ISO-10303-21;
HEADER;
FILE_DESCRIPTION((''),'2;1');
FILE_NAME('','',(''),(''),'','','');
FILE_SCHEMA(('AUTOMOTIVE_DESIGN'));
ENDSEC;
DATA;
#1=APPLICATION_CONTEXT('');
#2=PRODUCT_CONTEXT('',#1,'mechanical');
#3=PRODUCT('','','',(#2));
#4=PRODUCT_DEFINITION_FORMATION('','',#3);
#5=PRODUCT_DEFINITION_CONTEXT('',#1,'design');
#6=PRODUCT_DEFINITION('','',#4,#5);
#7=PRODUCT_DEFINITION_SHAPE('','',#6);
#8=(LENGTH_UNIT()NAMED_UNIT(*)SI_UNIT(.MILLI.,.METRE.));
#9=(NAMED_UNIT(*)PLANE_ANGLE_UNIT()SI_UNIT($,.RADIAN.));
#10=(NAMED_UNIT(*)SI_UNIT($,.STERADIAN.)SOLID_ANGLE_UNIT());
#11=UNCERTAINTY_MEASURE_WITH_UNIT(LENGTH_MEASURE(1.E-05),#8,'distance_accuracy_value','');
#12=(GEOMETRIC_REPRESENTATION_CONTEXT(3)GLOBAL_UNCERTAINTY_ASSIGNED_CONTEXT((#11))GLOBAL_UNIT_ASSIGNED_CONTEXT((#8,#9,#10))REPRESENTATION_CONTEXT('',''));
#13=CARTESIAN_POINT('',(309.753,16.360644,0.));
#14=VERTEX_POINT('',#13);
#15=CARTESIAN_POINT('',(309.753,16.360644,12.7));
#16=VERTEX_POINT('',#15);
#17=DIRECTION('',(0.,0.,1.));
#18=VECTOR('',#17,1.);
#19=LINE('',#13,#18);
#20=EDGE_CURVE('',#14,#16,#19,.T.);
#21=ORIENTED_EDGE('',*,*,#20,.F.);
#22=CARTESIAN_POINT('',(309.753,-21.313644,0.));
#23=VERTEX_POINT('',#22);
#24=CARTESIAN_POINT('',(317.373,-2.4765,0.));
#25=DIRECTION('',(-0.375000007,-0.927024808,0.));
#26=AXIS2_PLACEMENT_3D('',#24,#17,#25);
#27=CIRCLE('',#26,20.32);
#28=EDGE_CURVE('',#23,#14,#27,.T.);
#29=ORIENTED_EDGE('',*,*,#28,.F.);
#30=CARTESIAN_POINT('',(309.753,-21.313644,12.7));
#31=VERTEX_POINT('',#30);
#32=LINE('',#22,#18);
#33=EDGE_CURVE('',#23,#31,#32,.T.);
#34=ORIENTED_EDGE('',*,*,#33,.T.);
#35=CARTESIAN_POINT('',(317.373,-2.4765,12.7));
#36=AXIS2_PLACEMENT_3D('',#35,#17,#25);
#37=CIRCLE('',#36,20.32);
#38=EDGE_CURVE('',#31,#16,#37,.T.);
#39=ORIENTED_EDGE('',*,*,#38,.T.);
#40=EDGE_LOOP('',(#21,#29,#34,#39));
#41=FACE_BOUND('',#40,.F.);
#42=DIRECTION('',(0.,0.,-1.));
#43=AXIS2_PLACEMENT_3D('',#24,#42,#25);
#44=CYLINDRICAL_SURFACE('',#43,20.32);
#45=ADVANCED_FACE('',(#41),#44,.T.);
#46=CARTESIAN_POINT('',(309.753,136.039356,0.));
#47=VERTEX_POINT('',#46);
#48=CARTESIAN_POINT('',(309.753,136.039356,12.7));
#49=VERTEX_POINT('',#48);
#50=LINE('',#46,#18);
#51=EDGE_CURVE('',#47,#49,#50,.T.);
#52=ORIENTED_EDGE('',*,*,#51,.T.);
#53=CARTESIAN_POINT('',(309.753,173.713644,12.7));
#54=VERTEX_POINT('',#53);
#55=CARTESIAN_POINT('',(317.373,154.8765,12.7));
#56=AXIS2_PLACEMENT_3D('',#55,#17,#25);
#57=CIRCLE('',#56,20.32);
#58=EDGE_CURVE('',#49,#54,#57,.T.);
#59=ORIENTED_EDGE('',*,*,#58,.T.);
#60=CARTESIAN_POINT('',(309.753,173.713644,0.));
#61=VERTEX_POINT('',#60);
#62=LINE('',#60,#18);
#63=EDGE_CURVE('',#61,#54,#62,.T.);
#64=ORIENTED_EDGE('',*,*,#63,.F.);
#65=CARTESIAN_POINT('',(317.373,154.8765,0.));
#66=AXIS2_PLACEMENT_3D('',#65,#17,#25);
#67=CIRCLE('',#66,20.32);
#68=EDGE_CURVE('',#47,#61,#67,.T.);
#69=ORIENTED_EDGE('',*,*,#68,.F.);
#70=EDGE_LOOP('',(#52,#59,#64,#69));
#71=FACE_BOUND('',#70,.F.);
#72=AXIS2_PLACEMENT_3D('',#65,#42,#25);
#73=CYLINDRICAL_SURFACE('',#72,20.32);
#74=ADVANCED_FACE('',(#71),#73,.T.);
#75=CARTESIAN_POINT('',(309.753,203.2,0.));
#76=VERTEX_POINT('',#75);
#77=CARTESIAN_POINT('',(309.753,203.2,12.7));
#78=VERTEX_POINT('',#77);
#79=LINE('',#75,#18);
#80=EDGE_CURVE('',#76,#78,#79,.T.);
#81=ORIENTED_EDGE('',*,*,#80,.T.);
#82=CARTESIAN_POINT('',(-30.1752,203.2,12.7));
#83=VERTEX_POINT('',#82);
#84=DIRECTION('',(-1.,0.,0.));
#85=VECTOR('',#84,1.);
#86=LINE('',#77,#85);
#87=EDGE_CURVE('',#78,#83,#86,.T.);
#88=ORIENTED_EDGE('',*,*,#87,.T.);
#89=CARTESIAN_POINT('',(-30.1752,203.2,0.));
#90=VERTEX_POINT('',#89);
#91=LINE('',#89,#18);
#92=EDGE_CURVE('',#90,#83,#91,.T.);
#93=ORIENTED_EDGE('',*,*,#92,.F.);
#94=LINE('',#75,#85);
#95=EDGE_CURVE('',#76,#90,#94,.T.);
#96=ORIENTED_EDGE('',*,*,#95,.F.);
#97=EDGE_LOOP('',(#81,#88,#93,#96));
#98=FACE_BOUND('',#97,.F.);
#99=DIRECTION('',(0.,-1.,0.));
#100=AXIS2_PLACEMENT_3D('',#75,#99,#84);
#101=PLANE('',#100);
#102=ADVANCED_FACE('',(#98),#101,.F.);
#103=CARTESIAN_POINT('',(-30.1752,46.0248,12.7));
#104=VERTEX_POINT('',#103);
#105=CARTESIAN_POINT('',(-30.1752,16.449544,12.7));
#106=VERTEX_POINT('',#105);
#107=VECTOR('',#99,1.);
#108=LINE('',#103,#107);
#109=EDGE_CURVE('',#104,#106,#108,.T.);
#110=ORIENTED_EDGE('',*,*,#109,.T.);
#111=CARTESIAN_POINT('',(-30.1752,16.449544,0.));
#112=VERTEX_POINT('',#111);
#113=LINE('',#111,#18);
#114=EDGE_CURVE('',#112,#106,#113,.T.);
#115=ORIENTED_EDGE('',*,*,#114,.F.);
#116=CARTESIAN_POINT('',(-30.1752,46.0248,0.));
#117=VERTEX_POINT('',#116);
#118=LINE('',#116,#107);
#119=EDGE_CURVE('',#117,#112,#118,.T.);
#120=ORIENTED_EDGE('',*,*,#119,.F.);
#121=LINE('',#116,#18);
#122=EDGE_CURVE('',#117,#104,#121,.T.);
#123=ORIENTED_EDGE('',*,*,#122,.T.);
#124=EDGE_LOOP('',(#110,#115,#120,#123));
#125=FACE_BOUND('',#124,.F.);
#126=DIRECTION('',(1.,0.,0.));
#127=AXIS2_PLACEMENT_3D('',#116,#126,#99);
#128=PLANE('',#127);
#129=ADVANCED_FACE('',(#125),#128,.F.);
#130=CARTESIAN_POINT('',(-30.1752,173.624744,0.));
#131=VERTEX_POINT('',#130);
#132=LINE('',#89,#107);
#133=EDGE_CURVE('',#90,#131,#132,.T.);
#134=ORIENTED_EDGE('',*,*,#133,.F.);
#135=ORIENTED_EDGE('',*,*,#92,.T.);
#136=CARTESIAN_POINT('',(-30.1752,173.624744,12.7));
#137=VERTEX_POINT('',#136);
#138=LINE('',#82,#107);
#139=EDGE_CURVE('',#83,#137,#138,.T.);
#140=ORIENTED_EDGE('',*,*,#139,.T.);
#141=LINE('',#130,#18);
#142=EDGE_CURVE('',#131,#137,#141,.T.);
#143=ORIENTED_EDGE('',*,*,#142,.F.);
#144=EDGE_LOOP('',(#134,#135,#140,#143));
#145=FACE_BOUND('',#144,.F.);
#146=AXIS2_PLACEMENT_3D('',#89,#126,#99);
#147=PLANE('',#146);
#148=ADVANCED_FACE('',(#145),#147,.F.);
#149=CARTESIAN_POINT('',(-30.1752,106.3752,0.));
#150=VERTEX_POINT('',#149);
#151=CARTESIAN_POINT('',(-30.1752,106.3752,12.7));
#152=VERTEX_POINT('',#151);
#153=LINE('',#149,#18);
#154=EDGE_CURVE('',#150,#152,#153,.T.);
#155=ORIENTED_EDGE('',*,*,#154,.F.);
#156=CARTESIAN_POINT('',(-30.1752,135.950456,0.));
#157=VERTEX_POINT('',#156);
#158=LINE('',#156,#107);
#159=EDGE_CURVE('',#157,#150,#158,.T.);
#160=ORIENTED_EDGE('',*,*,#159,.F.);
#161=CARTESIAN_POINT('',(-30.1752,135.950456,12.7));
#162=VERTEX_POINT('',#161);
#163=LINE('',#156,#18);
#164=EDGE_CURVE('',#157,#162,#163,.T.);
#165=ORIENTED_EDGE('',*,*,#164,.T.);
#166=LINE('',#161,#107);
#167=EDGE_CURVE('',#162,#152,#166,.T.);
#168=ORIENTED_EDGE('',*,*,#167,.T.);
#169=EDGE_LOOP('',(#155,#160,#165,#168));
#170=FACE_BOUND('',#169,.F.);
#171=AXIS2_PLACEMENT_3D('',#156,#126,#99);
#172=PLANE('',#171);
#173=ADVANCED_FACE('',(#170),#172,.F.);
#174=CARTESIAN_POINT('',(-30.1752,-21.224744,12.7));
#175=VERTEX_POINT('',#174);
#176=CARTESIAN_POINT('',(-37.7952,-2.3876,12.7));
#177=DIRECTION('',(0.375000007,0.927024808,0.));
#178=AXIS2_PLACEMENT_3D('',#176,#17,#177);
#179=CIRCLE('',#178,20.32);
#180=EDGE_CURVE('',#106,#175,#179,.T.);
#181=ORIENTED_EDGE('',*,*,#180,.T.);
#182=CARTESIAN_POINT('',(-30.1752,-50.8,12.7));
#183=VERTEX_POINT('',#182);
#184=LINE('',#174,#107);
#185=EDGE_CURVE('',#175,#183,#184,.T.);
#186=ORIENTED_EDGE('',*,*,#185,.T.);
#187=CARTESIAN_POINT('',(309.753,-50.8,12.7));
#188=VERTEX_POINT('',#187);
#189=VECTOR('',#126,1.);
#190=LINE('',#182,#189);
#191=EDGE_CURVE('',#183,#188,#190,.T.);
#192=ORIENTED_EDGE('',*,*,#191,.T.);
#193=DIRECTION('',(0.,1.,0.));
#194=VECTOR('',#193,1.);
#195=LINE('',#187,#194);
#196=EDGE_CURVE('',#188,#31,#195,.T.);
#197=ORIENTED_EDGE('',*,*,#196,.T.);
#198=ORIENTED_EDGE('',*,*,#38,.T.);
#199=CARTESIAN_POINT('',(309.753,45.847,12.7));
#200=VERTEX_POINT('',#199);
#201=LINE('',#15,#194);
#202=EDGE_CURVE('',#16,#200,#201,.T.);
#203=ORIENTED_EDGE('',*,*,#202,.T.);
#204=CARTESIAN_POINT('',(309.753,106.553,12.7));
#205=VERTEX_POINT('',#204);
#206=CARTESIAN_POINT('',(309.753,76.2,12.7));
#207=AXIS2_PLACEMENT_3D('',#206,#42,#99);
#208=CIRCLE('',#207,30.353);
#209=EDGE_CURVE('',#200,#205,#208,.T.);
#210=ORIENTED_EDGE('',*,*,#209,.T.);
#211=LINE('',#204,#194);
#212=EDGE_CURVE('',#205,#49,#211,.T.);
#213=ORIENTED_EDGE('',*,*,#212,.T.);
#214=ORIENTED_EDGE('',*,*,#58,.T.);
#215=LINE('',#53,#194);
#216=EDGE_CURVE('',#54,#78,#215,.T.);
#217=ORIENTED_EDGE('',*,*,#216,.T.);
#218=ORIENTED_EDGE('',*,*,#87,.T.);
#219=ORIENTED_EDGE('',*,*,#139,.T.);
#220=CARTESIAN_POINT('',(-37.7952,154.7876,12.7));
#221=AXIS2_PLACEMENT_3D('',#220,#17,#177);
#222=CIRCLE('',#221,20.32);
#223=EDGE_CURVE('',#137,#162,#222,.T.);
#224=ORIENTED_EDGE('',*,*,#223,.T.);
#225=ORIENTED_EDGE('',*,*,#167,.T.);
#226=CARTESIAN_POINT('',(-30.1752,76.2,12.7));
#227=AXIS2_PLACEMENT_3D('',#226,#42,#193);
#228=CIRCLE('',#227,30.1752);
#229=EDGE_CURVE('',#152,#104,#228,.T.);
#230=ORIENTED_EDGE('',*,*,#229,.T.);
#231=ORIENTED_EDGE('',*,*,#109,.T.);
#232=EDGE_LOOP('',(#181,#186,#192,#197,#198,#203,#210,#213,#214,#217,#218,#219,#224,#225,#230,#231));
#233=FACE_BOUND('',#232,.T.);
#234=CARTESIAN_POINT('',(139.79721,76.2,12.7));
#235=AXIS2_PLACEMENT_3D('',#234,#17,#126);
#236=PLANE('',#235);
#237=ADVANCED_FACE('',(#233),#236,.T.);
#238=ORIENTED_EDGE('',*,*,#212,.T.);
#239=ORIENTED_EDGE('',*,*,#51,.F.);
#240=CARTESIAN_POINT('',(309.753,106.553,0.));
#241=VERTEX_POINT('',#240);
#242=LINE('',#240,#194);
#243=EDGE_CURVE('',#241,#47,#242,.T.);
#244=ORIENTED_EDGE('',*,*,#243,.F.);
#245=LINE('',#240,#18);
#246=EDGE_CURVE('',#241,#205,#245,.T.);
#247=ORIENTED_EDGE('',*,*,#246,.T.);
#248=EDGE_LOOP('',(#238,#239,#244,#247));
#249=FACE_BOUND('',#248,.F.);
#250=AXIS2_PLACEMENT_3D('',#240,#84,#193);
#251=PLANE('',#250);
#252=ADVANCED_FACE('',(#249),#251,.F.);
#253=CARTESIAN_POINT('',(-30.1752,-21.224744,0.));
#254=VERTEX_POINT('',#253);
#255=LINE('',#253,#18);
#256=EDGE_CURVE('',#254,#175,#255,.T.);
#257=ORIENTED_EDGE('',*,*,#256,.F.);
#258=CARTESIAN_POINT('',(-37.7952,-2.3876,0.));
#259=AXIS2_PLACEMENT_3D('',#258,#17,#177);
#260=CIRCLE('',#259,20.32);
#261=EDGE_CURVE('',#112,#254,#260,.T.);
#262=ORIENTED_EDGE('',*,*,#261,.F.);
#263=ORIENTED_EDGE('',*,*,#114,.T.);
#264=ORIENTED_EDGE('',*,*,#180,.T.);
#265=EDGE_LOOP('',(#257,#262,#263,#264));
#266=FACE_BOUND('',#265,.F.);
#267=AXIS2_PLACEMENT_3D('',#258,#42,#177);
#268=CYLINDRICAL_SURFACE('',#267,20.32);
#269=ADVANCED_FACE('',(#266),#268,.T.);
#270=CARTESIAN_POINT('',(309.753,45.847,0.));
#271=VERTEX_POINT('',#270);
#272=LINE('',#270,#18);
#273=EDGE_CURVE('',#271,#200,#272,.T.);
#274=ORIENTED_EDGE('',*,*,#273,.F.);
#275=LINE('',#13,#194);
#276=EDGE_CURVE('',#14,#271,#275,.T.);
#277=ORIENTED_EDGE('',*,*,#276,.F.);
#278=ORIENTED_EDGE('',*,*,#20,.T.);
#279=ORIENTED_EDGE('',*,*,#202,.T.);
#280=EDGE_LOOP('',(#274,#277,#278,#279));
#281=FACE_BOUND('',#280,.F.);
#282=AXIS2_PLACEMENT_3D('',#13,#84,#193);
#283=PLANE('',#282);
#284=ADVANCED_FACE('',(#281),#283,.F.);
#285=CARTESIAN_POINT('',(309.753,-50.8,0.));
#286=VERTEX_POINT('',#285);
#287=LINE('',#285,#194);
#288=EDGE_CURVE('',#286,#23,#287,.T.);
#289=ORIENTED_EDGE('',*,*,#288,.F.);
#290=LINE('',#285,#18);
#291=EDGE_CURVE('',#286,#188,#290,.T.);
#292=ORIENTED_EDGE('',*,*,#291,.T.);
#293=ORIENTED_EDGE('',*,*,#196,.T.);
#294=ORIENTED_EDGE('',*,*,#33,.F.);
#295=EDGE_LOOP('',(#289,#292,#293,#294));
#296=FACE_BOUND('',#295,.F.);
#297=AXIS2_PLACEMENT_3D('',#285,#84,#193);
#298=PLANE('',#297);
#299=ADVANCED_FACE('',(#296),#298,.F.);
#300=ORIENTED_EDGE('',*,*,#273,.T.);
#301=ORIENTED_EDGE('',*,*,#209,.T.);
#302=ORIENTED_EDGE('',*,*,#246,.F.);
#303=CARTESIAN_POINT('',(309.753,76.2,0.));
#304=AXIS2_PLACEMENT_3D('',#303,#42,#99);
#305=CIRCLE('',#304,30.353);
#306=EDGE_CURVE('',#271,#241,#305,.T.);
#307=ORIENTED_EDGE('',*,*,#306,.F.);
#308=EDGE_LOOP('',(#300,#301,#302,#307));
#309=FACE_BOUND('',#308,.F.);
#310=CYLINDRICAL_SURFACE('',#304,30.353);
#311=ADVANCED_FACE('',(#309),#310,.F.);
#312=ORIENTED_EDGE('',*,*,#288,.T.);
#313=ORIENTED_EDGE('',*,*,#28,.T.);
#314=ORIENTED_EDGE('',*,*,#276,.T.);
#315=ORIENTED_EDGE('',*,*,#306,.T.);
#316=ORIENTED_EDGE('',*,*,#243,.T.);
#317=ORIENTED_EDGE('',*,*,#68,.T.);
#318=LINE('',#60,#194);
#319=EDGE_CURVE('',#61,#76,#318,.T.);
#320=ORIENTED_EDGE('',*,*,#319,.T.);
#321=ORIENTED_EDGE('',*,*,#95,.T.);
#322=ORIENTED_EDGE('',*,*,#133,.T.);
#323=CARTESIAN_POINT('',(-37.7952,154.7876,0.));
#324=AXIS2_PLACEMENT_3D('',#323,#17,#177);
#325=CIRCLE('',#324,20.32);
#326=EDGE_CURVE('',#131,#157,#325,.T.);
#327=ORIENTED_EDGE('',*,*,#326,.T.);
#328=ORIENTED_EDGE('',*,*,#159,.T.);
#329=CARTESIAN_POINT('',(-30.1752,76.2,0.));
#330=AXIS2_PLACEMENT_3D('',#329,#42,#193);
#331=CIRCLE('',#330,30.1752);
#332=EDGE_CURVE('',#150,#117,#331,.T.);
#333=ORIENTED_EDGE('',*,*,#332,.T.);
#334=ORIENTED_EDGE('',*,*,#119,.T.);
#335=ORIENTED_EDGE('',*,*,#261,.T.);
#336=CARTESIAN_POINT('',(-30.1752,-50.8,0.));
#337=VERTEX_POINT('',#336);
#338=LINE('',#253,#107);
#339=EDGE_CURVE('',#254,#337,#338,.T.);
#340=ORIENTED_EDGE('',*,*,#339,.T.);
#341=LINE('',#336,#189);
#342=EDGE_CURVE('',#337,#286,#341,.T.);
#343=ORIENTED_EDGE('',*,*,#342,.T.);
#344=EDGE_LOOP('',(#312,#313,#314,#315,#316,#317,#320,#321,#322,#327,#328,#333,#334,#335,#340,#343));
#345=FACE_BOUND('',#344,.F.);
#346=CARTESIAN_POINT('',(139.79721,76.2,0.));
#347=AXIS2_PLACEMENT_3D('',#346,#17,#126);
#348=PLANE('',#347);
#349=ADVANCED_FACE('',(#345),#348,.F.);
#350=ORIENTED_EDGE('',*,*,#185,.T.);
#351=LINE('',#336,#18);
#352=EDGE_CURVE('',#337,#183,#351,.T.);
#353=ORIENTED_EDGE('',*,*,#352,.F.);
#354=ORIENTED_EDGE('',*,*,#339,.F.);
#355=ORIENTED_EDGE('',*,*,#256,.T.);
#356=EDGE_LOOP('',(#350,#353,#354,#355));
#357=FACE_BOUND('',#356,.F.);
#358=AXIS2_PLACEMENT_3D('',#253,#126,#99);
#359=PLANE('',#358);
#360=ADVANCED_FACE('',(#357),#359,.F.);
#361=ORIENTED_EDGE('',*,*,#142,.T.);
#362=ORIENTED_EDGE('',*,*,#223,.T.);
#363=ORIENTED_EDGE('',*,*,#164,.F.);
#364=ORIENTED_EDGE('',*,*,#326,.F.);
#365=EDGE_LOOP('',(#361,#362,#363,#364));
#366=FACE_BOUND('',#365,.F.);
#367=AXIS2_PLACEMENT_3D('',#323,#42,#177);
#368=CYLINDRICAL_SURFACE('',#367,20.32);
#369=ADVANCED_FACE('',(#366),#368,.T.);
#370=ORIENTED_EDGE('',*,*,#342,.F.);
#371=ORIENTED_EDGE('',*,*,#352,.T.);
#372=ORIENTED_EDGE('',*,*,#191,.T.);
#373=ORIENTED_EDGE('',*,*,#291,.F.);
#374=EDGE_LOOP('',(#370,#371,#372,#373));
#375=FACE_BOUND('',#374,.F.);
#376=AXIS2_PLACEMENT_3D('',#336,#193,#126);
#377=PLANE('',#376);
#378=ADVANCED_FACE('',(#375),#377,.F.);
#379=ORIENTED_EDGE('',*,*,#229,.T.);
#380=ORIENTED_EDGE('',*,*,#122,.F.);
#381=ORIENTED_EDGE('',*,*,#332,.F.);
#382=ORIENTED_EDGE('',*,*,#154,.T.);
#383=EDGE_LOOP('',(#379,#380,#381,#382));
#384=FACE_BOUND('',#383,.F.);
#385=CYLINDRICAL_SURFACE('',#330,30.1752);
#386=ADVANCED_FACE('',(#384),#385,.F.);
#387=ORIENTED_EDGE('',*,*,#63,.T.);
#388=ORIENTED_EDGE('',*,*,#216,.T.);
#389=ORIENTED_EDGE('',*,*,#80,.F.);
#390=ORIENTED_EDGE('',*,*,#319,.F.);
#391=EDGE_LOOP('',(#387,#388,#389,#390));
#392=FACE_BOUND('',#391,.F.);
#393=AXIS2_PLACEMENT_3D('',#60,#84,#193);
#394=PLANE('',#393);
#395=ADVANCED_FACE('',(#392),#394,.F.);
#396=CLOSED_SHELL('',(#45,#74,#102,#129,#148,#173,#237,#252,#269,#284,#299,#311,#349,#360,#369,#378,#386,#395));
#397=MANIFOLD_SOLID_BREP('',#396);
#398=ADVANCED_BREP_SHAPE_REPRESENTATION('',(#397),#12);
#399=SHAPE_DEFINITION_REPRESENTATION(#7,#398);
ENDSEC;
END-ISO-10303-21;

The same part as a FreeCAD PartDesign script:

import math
import FreeCAD as App
import Part
import Sketcher
Q = App.Units.Quantity

doc = App.newDocument("Part")
body = doc.addObject("PartDesign::Body", "Body")

# Sketch on XY plane
sketch1 = body.newObject("Sketcher::SketchObject", "Sketch")
sketch1.AttachmentSupport = (doc.getObject("XY_Plane"), [""])
sketch1.MapMode = "FlatFace"
sketch1.addGeometry([
    Part.ArcOfCircle(Part.Circle(App.Vector(-30, 76, 0), App.Vector(0, 0, 1), 30), math.radians(-90), math.radians(90)),  # 0
    Part.LineSegment(App.Vector(-30, 46, 0), App.Vector(-30, 16, 0)),  # 1
    Part.ArcOfCircle(Part.Circle(App.Vector(-38, -2, 0), App.Vector(0, 0, 1), 20), math.radians(68), math.radians(292)),  # 2
    Part.LineSegment(App.Vector(-30, -21, 0), App.Vector(-30, -51, 0)),  # 3
    Part.LineSegment(App.Vector(-30, -51, 0), App.Vector(310, -51, 0)),  # 4
    Part.LineSegment(App.Vector(310, -51, 0), App.Vector(310, -21, 0)),  # 5
    Part.ArcOfCircle(Part.Circle(App.Vector(317, -2, 0), App.Vector(0, 0, 1), 20), math.radians(-112), math.radians(112)),  # 6
    Part.LineSegment(App.Vector(310, 16, 0), App.Vector(310, 46, 0)),  # 7
    Part.ArcOfCircle(Part.Circle(App.Vector(310, 76, 0), App.Vector(0, 0, 1), 30), math.radians(90), math.radians(270)),  # 8
    Part.LineSegment(App.Vector(310, 107, 0), App.Vector(310, 136, 0)),  # 9
    Part.ArcOfCircle(Part.Circle(App.Vector(317, 155, 0), App.Vector(0, 0, 1), 20), math.radians(-112), math.radians(112)),  # 10
    Part.LineSegment(App.Vector(310, 174, 0), App.Vector(310, 203, 0)),  # 11
    Part.LineSegment(App.Vector(310, 203, 0), App.Vector(-30, 203, 0)),  # 12
    Part.LineSegment(App.Vector(-30, 203, 0), App.Vector(-30, 174, 0)),  # 13
    Part.ArcOfCircle(Part.Circle(App.Vector(-38, 155, 0), App.Vector(0, 0, 1), 20), math.radians(68), math.radians(292)),  # 14
    Part.LineSegment(App.Vector(-30, 136, 0), App.Vector(-30, 106, 0)),  # 15
], False)
sketch1.addConstraint([
    Sketcher.Constraint("Coincident", 0, 1, 1, 1),
    Sketcher.Constraint("Coincident", 1, 2, 2, 1),
    Sketcher.Constraint("Coincident", 2, 2, 3, 1),
    Sketcher.Constraint("Coincident", 3, 2, 4, 1),
    Sketcher.Constraint("Coincident", 4, 2, 5, 1),
    Sketcher.Constraint("Coincident", 5, 2, 6, 1),
    Sketcher.Constraint("Coincident", 6, 2, 7, 1),
    Sketcher.Constraint("Coincident", 7, 2, 8, 2),
    Sketcher.Constraint("Coincident", 8, 1, 9, 1),
    Sketcher.Constraint("Coincident", 9, 2, 10, 1),
    Sketcher.Constraint("Coincident", 10, 2, 11, 1),
    Sketcher.Constraint("Coincident", 11, 2, 12, 1),
    Sketcher.Constraint("Coincident", 12, 2, 13, 1),
    Sketcher.Constraint("Coincident", 13, 2, 14, 1),
    Sketcher.Constraint("Coincident", 14, 2, 15, 1),
    Sketcher.Constraint("Coincident", 15, 2, 0, 2),
    Sketcher.Constraint("Vertical", 1),
    Sketcher.Constraint("Vertical", 3),
    Sketcher.Constraint("Horizontal", 4),
    Sketcher.Constraint("Vertical", 5),
    Sketcher.Constraint("Vertical", 7),
    Sketcher.Constraint("Vertical", 9),
    Sketcher.Constraint("Vertical", 11),
    Sketcher.Constraint("Horizontal", 12),
    Sketcher.Constraint("Vertical", 13),
    Sketcher.Constraint("Vertical", 15),
    Sketcher.Constraint("Equal", 2, 6),
    Sketcher.Constraint("Equal", 6, 10),
    Sketcher.Constraint("Equal", 10, 14),
    Sketcher.Constraint("Horizontal", 0, 3, 8, 3),
    Sketcher.Constraint("Vertical", 6, 3, 10, 3),
    Sketcher.Constraint("Vertical", 2, 3, 14, 3),
    Sketcher.Constraint("Vertical", 1, 2, 2, 2),
    Sketcher.Constraint("Vertical", 8, 3, 4, 2),
    Sketcher.Constraint("Vertical", 5, 2, 6, 2),
    Sketcher.Constraint("Vertical", 7, 2, 8, 1),
    Sketcher.Constraint("Vertical", 9, 2, 10, 2),
    Sketcher.Constraint("Vertical", 3, 2, 12, 2),
    Sketcher.Constraint("Vertical", 13, 2, 14, 2),
    Sketcher.Constraint("Equal", 1, 3),
    Sketcher.Constraint("Equal", 5, 7),
    Sketcher.Constraint("Equal", 7, 9),
    Sketcher.Constraint("Equal", 9, 11),
    Sketcher.Constraint("Equal", 3, 13),
    Sketcher.Constraint("Radius", 2, Q("0.8 in")),
    Sketcher.Constraint("DistanceY", -1, 1, 0, 3, Q("3 in")),
    Sketcher.Constraint("DistanceY", 3, 2, -1, 1, Q("2 in")),
    Sketcher.Constraint("Radius", 0, Q("1.188 in")),
    Sketcher.Constraint("Radius", 8, Q("1.195 in")),
    Sketcher.Constraint("DistanceX", 2, 3, 0, 3, Q("0.3 in")),
    Sketcher.Constraint("DistanceX", 8, 3, 6, 3, Q("0.3 in")),
    Sketcher.Constraint("DistanceX", 2, 3, 0, 1, Q("0.3 in")),
    Sketcher.Constraint("DistanceX", 4, 1, 4, 2, Q("13.383 in")),
    Sketcher.Constraint("DistanceX", 0, 3, -1, 1, Q("1.188 in")),
])
pad1 = body.newObject("PartDesign::Pad", "Pad")
pad1.Profile = sketch1
pad1.Length = Q("0.5 in")

doc.recompute()
